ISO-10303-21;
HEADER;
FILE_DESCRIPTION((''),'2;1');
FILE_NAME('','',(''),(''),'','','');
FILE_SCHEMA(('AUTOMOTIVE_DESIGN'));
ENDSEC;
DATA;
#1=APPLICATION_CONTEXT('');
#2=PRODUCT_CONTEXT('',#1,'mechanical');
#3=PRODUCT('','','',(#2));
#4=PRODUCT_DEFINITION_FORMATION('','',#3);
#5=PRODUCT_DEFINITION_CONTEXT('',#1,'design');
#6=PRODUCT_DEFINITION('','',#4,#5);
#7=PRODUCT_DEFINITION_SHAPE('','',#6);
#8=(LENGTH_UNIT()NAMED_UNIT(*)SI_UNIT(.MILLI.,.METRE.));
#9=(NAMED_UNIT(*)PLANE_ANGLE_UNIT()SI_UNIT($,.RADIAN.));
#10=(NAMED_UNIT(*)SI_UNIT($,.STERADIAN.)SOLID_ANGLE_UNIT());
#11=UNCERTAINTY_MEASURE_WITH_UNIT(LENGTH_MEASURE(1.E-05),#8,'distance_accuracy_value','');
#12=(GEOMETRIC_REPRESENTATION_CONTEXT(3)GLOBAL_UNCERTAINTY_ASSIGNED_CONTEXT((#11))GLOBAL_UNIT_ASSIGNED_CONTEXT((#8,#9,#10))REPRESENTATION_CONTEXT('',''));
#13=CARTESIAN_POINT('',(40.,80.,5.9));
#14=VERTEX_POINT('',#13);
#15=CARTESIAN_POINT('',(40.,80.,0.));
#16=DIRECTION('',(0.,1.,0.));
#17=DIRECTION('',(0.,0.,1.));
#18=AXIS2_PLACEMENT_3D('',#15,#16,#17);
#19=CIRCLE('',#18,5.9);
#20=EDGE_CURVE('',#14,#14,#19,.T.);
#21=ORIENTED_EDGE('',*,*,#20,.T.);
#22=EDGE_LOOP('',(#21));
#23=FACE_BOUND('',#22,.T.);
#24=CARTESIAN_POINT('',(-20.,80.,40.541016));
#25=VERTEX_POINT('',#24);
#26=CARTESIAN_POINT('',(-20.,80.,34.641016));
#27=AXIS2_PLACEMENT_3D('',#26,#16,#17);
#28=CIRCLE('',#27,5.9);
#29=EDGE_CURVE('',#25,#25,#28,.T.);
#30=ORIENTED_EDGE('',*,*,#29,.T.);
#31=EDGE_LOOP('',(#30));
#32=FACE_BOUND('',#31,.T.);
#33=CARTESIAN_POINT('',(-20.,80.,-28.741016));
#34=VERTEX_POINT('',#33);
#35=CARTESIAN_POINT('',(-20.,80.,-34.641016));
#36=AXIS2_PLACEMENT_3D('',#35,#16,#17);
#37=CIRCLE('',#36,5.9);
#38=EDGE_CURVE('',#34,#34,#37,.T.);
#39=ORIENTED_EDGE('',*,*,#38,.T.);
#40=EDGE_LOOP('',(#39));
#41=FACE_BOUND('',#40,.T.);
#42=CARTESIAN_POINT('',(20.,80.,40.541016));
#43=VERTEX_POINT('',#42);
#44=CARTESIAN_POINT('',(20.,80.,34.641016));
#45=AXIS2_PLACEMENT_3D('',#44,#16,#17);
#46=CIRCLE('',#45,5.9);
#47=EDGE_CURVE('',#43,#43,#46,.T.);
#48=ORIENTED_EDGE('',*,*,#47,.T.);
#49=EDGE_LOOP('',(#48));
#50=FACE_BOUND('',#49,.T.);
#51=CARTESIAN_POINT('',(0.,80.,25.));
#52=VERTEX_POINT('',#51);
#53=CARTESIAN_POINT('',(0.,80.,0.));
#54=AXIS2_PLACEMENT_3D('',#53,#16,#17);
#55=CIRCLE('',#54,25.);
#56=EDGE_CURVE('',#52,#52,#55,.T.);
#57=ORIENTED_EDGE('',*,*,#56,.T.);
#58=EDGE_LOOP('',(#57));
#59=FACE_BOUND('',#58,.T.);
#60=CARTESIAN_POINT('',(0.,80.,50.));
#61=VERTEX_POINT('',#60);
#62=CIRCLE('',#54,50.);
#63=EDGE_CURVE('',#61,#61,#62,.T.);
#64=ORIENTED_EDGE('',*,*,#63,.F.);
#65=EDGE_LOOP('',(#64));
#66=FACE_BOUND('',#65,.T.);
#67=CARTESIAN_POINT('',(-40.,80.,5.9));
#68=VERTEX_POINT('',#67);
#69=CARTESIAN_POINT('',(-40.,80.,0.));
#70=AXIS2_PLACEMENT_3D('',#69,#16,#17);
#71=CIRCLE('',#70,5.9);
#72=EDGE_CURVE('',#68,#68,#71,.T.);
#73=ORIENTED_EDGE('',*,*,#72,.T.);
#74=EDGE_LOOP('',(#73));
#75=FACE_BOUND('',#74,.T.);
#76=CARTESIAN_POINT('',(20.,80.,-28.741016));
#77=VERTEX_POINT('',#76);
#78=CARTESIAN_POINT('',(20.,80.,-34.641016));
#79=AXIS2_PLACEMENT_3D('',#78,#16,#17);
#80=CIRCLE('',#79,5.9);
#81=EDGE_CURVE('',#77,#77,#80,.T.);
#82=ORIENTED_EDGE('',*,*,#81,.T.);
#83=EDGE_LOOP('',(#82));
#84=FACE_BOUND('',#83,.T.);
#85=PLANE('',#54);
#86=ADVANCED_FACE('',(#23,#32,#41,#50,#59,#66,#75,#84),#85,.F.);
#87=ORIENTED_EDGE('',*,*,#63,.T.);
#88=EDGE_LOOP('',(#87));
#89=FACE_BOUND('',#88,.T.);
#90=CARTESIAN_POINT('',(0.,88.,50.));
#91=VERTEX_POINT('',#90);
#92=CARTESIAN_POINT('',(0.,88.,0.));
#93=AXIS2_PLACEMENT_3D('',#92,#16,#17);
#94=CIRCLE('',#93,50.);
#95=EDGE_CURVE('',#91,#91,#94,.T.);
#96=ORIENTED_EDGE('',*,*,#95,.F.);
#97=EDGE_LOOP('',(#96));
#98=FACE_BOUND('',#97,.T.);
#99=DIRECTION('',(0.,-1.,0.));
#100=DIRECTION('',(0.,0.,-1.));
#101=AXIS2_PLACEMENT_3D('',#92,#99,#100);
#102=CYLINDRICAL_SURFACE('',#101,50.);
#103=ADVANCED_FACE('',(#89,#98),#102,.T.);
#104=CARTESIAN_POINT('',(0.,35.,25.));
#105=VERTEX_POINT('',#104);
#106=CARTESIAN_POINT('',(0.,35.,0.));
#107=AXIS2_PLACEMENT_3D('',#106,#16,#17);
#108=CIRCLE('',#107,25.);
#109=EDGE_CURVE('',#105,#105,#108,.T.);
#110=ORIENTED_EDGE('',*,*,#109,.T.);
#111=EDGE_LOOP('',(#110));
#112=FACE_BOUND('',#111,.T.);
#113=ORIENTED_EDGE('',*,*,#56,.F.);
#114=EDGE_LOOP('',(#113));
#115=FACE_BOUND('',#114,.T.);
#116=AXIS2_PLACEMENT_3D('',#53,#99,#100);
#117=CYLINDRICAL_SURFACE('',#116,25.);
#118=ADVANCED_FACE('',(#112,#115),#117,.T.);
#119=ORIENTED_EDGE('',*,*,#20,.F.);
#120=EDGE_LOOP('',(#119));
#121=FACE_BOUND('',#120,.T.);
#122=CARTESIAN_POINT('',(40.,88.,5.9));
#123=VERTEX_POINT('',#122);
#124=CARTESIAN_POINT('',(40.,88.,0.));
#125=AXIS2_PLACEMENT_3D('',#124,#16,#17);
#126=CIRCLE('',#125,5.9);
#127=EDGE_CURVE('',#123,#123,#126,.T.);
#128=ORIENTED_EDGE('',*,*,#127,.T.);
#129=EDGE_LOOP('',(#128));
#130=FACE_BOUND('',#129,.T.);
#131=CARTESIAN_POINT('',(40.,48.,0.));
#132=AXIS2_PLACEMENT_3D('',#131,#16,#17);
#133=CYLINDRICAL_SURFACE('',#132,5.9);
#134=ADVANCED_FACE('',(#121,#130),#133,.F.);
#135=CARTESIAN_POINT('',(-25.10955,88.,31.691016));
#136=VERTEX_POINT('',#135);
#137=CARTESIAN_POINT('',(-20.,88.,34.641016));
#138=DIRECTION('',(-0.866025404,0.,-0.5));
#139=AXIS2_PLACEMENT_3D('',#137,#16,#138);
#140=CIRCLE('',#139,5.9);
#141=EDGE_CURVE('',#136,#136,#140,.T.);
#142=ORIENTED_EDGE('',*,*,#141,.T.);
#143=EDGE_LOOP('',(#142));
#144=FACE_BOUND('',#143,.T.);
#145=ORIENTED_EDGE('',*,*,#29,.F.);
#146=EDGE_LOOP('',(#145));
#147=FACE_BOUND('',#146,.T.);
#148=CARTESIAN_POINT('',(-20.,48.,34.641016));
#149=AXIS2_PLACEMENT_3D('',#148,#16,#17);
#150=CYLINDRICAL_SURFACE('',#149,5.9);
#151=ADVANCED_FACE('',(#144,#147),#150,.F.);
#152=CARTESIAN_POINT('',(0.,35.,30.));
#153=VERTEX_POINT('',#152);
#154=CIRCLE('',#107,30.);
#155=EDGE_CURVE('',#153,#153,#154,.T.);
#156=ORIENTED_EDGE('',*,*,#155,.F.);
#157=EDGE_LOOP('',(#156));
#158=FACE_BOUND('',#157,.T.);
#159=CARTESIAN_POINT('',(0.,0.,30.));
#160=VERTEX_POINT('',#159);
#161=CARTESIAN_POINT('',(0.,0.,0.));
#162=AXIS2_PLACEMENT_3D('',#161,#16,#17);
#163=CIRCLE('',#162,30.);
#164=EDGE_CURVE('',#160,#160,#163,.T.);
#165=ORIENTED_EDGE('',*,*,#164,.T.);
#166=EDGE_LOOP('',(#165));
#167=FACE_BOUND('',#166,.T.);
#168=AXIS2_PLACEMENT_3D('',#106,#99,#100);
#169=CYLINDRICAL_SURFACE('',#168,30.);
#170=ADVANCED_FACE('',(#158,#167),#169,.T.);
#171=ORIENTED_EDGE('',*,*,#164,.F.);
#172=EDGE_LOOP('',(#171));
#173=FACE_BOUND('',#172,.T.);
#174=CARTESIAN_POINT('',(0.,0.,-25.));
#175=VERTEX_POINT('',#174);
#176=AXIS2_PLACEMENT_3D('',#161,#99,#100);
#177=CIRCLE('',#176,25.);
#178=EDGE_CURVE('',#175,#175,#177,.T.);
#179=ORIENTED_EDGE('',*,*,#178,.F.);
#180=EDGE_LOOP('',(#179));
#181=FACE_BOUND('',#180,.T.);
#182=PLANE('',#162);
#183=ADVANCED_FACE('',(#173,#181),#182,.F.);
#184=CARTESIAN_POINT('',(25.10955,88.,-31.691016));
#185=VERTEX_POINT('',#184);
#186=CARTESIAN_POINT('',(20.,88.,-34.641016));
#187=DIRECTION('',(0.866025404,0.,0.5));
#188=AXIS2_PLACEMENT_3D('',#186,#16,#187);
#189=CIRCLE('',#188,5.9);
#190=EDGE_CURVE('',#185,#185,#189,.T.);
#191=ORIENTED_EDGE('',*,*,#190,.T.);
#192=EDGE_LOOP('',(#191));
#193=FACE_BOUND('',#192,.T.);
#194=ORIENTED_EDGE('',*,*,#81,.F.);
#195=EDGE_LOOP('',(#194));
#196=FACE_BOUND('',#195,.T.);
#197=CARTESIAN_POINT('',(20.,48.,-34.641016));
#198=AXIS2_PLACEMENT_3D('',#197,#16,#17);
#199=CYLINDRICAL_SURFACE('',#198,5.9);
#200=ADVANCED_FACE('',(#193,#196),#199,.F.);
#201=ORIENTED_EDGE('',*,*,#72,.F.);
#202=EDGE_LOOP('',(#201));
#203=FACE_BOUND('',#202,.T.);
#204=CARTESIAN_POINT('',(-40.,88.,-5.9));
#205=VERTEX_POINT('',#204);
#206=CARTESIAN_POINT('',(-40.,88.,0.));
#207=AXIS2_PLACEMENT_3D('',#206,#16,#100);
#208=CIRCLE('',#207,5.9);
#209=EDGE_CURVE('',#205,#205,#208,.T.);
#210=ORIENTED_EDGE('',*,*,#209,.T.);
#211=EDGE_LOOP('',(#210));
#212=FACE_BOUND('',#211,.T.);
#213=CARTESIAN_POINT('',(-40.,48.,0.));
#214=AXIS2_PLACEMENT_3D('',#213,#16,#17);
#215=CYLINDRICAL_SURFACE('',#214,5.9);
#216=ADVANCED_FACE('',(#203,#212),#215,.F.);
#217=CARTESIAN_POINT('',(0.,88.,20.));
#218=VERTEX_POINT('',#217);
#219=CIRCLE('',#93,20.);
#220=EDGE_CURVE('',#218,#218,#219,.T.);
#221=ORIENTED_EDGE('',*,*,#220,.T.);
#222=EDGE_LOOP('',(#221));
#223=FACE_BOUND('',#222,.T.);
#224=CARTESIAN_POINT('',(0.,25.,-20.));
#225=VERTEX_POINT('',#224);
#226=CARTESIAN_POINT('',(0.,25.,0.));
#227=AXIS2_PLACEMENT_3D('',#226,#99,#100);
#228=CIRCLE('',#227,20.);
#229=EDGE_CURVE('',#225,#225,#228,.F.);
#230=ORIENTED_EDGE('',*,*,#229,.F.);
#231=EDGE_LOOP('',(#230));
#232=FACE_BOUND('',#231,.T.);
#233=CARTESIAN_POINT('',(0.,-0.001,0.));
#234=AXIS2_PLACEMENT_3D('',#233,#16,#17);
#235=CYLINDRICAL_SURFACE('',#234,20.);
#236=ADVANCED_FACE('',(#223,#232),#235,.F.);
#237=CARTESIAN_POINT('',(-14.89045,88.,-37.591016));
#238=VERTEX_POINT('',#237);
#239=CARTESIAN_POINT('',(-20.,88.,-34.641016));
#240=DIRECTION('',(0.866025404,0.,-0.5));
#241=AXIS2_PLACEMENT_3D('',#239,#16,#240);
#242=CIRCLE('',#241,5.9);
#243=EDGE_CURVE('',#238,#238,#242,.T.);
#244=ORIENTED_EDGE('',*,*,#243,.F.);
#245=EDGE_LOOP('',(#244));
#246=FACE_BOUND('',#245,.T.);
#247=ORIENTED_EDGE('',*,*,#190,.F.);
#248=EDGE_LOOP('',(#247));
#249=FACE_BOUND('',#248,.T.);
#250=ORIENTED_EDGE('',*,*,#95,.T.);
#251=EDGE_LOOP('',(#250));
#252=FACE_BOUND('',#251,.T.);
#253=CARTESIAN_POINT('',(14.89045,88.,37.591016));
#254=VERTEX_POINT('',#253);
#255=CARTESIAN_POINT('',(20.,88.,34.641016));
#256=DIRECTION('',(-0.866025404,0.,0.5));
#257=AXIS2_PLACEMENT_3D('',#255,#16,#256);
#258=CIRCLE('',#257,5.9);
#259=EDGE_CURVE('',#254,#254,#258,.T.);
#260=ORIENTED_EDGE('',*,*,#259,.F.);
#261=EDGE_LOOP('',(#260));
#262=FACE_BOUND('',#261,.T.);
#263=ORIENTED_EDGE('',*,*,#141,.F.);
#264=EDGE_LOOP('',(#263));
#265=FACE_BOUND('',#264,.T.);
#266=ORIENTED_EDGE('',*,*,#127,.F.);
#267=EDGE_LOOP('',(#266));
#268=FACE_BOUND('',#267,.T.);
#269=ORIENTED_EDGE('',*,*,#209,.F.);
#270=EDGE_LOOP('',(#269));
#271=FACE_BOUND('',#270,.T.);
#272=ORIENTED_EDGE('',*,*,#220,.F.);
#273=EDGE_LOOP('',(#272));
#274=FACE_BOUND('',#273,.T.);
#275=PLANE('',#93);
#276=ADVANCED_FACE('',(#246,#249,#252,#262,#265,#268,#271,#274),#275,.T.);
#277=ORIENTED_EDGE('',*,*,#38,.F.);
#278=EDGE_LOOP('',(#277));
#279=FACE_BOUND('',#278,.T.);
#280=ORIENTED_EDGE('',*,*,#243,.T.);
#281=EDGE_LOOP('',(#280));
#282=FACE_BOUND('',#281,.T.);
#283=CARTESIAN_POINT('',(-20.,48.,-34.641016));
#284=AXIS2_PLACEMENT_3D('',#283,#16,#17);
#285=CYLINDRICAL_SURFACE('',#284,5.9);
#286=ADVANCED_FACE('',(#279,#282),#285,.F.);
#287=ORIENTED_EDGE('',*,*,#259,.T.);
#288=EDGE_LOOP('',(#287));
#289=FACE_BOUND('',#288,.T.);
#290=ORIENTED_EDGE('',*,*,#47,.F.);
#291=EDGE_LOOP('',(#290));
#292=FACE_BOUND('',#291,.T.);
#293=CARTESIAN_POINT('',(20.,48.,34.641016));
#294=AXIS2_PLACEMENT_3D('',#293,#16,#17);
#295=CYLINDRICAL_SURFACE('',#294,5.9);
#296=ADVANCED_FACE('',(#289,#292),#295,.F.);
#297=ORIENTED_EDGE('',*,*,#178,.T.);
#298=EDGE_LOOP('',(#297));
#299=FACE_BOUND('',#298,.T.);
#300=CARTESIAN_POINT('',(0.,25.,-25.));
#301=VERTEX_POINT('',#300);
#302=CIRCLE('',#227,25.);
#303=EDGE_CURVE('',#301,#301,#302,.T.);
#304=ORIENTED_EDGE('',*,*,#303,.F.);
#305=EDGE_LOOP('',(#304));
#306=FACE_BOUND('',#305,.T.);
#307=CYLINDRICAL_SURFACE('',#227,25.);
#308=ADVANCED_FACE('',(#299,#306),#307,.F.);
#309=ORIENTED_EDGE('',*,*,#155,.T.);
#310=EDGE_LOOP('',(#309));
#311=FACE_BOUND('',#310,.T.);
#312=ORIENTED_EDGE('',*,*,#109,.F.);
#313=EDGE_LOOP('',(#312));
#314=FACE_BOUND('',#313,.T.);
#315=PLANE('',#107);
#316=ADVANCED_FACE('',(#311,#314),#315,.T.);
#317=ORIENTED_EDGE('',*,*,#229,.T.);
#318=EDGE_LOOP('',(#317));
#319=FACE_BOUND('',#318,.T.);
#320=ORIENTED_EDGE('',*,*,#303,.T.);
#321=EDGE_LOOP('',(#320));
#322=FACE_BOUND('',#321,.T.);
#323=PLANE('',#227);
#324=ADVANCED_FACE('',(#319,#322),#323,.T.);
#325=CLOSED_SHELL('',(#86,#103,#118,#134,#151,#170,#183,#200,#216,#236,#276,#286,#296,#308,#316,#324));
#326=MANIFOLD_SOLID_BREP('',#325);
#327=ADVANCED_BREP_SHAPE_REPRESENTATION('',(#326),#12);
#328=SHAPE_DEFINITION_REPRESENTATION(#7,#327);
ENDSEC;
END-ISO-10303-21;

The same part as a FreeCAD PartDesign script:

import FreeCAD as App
import Part
import Sketcher

V = App.Vector

doc = App.newDocument("Part")
body = doc.addObject("PartDesign::Body", "Body")

sketch1 = body.newObject("Sketcher::SketchObject", "Sketch")
sketch1.AttachmentSupport = (doc.getObject("XZ_Plane"), [""])
sketch1.MapMode = "FlatFace"
sketch1.addGeometry(Part.Circle(V(0, 0, 0), V(0, 0, 1), 30), False)
sketch1.addConstraint([
    Sketcher.Constraint("Coincident", 0, 3, -1, 1),
    Sketcher.Constraint("Diameter", 0, 60.0),
])
pad1 = body.newObject("PartDesign::Pad", "Pad")
pad1.Profile = sketch1
pad1.Length = 35
pad1.Reversed = True

sketch2 = body.newObject("Sketcher::SketchObject", "Sketch001")
sketch2.AttachmentSupport = (doc.getObject("XZ_Plane"), [""])
sketch2.MapMode = "FlatFace"
sketch2.AttachmentOffset = App.Placement(V(0, 0, -35), App.Rotation())
sketch2.addGeometry(Part.Circle(V(0, 0, 0), V(0, 0, 1), 25), False)
sketch2.addConstraint([
    Sketcher.Constraint("Coincident", 0, 3, -1, 1),
    Sketcher.Constraint("Diameter", 0, 50.0),
])
pad2 = body.newObject("PartDesign::Pad", "Pad001")
pad2.Profile = sketch2
pad2.Length = 45
pad2.Reversed = True

sketch3 = body.newObject("Sketcher::SketchObject", "Sketch002")
sketch3.AttachmentSupport = (doc.getObject("XZ_Plane"), [""])
sketch3.MapMode = "FlatFace"
sketch3.AttachmentOffset = App.Placement(V(0, 0, -80), App.Rotation())
sketch3.addGeometry(Part.Circle(V(0, 0, 0), V(0, 0, 1), 50), False)
sketch3.addConstraint([
    Sketcher.Constraint("Coincident", 0, 3, -1, 1),
    Sketcher.Constraint("Diameter", 0, 100.0),
])
pad3 = body.newObject("PartDesign::Pad", "Pad002")
pad3.Profile = sketch3
pad3.Length = 8
pad3.Reversed = True

sketch4 = body.newObject("Sketcher::SketchObject", "Sketch003")
sketch4.AttachmentSupport = (doc.getObject("XZ_Plane"), [""])
sketch4.MapMode = "FlatFace"
sketch4.addGeometry(Part.Circle(V(0, 0, 0), V(0, 0, 1), 25), False)
sketch4.addConstraint([
    Sketcher.Constraint("Coincident", 0, 3, -1, 1),
    Sketcher.Constraint("Diameter", 0, 50.0),
])
pocket1 = body.newObject("PartDesign::Pocket", "Pocket")
pocket1.Profile = sketch4
pocket1.Length = 25

sketch5 = body.newObject("Sketcher::SketchObject", "Sketch004")
sketch5.AttachmentSupport = (doc.getObject("XZ_Plane"), [""])
sketch5.MapMode = "FlatFace"
sketch5.AttachmentOffset = App.Placement(V(0, 0, -88), App.Rotation())
sketch5.addGeometry(Part.Circle(V(0, 0, 0), V(0, 0, 1), 20), False)
sketch5.addConstraint([
    Sketcher.Constraint("Coincident", 0, 3, -1, 1),
    Sketcher.Constraint("Diameter", 0, 40.0),
])
pocket2 = body.newObject("PartDesign::Pocket", "Pocket001")
pocket2.Profile = sketch5
pocket2.Type = "UpToFirst"
pocket2.Reversed = True

sketch6 = body.newObject("Sketcher::SketchObject", "Sketch005")
sketch6.AttachmentSupport = (doc.getObject("XZ_Plane"), [""])
sketch6.MapMode = "FlatFace"
sketch6.AttachmentOffset = App.Placement(V(0, 0, -88), App.Rotation())
sketch6.addGeometry(Part.Circle(V(40, 0, 0), V(0, 0, 1), 6), False)
sketch6.addConstraint([
    Sketcher.Constraint("PointOnObject", 0, 3, -1),
    Sketcher.Constraint("Diameter", 0, 11.8),
    Sketcher.Constraint("DistanceX", -1, 1, 0, 3, 40.0),
])
pocket3 = body.newObject("PartDesign::Pocket", "Pocket002")
pocket3.Profile = sketch6
pocket3.Length = 40
pocket3.Reversed = True
doc.recompute()

polarpattern = body.newObject("PartDesign::PolarPattern", "PolarPattern")
polarpattern.Originals = [pocket3]
polarpattern.Axis = (doc.getObject("Y_Axis"), [""])
polarpattern.Angle = 360
polarpattern.Occurrences = 6
body.Tip = polarpattern

doc.recompute()
